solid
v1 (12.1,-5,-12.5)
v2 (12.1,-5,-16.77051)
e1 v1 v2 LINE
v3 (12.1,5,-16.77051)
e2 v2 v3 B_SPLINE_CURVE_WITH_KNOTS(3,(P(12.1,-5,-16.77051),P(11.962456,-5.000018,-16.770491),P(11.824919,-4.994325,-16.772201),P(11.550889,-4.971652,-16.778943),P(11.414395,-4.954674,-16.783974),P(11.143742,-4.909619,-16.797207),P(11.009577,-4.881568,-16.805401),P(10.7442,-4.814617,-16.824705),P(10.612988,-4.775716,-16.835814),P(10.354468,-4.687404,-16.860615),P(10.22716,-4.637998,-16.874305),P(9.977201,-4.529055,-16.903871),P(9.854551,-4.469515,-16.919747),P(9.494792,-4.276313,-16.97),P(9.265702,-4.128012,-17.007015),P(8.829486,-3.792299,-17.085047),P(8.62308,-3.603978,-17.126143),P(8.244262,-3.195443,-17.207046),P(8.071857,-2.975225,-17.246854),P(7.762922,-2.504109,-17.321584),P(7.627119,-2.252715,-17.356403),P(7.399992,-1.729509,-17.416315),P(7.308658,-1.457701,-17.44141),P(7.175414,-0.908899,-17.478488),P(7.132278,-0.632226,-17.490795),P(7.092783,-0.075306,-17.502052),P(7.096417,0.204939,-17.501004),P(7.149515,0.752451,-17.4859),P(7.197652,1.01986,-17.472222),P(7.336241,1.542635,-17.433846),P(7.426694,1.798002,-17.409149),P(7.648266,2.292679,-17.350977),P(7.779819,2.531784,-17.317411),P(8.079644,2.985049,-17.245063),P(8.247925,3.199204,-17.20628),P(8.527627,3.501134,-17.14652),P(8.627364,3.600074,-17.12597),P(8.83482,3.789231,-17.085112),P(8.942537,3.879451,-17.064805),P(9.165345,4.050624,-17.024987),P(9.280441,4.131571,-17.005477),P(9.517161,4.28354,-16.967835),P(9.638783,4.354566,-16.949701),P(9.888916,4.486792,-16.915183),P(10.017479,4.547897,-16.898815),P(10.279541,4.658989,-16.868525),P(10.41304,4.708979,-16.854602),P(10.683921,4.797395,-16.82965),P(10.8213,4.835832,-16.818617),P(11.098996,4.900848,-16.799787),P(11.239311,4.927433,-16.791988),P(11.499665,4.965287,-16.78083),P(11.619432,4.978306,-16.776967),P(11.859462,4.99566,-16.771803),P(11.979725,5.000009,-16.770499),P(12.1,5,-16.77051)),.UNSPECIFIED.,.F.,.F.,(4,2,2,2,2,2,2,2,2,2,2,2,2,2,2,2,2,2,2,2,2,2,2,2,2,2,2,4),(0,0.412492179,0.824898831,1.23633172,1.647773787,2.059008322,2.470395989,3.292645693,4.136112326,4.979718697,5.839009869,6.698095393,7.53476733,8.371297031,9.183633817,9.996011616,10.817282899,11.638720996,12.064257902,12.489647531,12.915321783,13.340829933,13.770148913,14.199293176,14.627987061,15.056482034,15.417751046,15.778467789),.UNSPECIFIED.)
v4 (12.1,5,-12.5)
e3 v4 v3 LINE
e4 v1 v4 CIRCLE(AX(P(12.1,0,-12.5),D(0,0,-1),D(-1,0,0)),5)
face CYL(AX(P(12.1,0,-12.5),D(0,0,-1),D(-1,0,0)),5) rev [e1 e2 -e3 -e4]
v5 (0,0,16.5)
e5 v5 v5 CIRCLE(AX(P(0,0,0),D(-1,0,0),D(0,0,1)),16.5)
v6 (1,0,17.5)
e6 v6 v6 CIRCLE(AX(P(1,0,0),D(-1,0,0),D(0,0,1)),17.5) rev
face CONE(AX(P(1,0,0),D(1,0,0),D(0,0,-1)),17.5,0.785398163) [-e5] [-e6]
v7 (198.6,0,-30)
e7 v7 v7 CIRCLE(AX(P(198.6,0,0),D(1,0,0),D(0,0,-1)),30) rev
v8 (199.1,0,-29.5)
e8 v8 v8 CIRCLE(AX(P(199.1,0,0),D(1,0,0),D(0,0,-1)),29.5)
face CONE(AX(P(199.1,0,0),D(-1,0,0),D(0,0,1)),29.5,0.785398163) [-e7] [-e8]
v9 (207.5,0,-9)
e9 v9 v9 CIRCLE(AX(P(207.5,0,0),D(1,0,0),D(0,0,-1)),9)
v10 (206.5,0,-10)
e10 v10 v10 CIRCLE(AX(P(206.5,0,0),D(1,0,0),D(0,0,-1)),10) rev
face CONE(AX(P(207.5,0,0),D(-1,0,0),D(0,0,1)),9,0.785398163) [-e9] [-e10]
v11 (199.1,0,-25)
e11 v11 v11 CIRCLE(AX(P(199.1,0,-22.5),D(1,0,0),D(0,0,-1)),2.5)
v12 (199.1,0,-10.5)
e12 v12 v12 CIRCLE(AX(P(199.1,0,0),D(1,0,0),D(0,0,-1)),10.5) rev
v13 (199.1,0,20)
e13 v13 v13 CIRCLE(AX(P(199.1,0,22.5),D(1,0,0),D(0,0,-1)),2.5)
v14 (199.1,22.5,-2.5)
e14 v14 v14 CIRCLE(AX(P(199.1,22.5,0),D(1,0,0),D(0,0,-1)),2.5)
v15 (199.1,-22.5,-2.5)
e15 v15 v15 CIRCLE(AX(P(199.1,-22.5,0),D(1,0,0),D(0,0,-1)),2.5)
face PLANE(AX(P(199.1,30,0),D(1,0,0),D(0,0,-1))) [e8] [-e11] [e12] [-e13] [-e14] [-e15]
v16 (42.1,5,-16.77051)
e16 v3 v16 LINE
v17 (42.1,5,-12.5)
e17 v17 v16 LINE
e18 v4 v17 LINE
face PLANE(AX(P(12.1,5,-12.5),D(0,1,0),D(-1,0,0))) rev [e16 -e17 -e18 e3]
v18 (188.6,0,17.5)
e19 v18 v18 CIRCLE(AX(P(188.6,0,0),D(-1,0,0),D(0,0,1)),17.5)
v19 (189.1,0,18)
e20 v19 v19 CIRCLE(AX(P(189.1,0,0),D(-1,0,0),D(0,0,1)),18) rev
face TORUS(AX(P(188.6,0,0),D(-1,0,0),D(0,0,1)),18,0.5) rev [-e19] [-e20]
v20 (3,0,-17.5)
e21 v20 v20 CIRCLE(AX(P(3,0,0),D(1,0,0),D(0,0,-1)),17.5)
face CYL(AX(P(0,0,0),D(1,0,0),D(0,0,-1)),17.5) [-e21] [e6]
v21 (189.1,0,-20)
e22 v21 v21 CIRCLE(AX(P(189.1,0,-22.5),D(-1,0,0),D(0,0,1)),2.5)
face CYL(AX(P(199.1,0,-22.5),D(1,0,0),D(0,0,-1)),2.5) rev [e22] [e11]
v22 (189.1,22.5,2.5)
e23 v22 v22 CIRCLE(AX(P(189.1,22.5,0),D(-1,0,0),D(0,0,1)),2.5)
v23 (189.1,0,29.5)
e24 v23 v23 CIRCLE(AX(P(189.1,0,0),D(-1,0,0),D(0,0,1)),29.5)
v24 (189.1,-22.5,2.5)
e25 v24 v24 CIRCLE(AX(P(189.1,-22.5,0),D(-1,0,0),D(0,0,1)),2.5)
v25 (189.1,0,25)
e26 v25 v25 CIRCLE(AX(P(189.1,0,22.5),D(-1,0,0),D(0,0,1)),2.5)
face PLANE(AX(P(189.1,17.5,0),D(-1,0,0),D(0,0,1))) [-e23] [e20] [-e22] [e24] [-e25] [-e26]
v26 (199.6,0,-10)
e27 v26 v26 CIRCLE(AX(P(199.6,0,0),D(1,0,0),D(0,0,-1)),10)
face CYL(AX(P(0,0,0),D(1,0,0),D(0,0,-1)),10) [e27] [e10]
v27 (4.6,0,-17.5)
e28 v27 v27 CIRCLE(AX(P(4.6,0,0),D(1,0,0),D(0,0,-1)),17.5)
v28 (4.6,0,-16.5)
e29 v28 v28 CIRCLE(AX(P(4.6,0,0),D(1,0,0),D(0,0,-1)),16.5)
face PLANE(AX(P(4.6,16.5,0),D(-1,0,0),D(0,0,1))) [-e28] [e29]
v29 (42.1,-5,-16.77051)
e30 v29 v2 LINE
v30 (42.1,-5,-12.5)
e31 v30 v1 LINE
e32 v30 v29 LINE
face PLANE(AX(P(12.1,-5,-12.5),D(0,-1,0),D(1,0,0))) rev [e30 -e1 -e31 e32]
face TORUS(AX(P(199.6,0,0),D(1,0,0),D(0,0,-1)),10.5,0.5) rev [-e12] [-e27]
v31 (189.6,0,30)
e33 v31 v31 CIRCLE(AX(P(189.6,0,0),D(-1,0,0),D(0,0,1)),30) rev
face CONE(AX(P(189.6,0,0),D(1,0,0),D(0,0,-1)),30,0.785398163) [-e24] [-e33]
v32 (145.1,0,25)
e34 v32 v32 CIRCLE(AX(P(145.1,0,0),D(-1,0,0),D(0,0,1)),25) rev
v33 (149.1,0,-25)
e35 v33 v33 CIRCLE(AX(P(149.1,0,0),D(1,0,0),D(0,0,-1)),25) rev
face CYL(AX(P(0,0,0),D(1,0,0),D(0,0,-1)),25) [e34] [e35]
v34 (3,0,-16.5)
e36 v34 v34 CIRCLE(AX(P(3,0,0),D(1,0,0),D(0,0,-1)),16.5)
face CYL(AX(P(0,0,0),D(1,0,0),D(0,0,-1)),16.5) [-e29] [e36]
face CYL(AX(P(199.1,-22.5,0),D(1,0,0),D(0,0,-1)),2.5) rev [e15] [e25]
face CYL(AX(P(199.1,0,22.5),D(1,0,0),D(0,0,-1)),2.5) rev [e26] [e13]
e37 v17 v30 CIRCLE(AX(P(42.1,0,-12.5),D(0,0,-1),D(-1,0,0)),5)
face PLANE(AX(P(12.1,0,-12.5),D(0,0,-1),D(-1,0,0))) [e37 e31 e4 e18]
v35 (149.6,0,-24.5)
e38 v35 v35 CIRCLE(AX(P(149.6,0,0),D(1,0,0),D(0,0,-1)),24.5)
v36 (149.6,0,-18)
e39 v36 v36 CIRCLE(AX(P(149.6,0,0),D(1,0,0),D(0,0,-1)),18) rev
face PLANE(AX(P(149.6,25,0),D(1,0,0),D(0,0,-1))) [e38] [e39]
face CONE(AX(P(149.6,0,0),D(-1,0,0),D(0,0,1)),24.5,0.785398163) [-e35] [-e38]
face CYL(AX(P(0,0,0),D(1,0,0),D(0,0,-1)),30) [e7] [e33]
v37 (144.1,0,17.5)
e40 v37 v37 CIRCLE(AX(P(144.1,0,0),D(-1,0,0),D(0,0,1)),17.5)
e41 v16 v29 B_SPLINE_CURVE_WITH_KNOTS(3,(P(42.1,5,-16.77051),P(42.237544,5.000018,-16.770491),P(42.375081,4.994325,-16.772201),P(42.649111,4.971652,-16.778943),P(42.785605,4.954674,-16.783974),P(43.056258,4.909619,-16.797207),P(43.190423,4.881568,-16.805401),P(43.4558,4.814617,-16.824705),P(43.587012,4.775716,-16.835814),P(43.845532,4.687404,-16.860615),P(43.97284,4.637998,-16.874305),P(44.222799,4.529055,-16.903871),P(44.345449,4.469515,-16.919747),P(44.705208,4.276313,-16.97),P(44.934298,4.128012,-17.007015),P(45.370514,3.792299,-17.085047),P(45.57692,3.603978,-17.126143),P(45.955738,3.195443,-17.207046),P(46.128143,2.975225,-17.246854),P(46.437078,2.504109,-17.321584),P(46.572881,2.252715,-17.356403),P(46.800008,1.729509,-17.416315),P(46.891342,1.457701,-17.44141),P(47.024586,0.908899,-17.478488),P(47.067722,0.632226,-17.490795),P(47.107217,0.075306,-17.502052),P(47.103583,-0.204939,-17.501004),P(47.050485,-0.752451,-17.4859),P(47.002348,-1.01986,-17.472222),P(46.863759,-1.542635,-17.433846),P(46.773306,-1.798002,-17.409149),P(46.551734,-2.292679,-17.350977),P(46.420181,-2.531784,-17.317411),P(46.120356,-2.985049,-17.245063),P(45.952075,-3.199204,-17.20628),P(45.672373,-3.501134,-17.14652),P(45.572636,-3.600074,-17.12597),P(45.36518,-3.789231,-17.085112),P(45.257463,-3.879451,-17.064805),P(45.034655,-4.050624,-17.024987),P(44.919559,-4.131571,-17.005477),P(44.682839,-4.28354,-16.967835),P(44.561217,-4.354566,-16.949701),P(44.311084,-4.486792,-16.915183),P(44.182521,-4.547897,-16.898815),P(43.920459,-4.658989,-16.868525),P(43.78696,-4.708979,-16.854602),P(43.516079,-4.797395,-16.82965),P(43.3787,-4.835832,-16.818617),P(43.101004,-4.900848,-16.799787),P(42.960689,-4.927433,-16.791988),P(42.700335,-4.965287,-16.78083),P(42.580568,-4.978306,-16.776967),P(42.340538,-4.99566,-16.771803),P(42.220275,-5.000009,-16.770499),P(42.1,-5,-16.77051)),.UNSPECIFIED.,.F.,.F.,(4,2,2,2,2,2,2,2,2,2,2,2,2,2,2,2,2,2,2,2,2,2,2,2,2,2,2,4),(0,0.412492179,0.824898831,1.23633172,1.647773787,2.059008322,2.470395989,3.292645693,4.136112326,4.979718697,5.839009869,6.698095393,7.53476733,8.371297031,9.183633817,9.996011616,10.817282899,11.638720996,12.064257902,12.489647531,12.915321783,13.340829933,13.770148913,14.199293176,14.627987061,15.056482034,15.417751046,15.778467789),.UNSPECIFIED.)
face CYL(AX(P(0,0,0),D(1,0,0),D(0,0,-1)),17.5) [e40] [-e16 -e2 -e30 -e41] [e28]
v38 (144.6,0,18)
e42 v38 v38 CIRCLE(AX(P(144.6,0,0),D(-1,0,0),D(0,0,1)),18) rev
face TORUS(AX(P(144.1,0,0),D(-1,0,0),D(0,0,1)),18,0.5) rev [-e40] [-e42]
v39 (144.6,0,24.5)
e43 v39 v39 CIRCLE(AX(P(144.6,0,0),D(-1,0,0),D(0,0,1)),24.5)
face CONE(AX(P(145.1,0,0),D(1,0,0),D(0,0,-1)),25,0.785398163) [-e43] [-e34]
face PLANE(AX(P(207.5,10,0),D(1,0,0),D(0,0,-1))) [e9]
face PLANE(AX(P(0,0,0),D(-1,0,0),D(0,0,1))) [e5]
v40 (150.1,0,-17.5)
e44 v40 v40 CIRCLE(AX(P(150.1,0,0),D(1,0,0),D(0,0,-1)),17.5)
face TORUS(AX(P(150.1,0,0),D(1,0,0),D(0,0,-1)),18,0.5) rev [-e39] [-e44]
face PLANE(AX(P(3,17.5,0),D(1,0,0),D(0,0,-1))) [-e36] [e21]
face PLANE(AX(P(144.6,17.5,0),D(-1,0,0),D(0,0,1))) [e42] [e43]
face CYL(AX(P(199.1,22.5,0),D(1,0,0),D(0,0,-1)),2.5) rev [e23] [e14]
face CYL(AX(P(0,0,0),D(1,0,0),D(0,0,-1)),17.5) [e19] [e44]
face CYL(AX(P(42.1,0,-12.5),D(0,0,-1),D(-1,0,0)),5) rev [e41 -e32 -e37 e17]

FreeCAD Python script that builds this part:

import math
import FreeCAD as App
import Part
import Sketcher
Q = App.Units.Quantity


def edges_at(feature, points):
    """Names of the edges that pass closest to the given points."""
    edges = feature.Shape.Edges
    near = lambda p: min(range(len(edges)), key=lambda i: edges[i].distToShape(Part.Vertex(*p))[0])
    return sorted({f"Edge{near(p) + 1}" for p in points})


def add_polygon(sketch, points):
    """Adds a closed chain of lines whose ends are joined by coincident constraints."""
    first, n = sketch.GeometryCount, len(points)
    for a, b in zip(points, points[1:] + points[:1]):
        sketch.addGeometry(Part.LineSegment(App.Vector(*a, 0), App.Vector(*b, 0)), False)
    for i in range(n):
        sketch.addConstraint(Sketcher.Constraint("Coincident", first + i, 2, first + (i + 1) % n, 1))

doc = App.newDocument("Part")
body = doc.addObject("PartDesign::Body", "Body")

# Sketch on XY plane
sketch1 = doc.addObject("Sketcher::SketchObject", "Sketch")
body.addObject(sketch1)
sketch1.AttachmentSupport = (doc.XY_Plane, [""])
sketch1.MapMode = "FlatFace"
add_polygon(sketch1, [(0, 0), (207.5, 0), (207.5, 10), (199.1, 10), (199.1, 30), (189.1, 30), (189.1, 17.5), (149.6, 17.5), (149.6, 25), (144.6, 25), (144.6, 17.5), (4.6, 17.5), (4.6, 16.5), (3, 16.5), (3, 17.5), (0, 17.5)])  # lines 0-15
sketch1.addConstraint(Sketcher.Constraint("Horizontal", 0))
sketch1.addConstraint(Sketcher.Constraint("Vertical", 1))
sketch1.addConstraint(Sketcher.Constraint("Horizontal", 2))
sketch1.addConstraint(Sketcher.Constraint("Vertical", 3))
sketch1.addConstraint(Sketcher.Constraint("Horizontal", 4))
sketch1.addConstraint(Sketcher.Constraint("Vertical", 5))
sketch1.addConstraint(Sketcher.Constraint("Horizontal", 6))
sketch1.addConstraint(Sketcher.Constraint("Vertical", 7))
sketch1.addConstraint(Sketcher.Constraint("Horizontal", 8))
sketch1.addConstraint(Sketcher.Constraint("Vertical", 9))
sketch1.addConstraint(Sketcher.Constraint("Horizontal", 10))
sketch1.addConstraint(Sketcher.Constraint("Vertical", 11))
sketch1.addConstraint(Sketcher.Constraint("Horizontal", 12))
sketch1.addConstraint(Sketcher.Constraint("Vertical", 13))
sketch1.addConstraint(Sketcher.Constraint("Horizontal", 14))
sketch1.addConstraint(Sketcher.Constraint("Vertical", 15))
sketch1.addConstraint(Sketcher.Constraint("Coincident", 15, 2, -1, 1))
sketch1.addConstraint(Sketcher.Constraint("Horizontal", 6, 2, 9, 2))
sketch1.addConstraint(Sketcher.Constraint("Horizontal", 10, 2, 13, 2))
sketch1.addConstraint(Sketcher.Constraint("Equal", 4, 1))
sketch1.addConstraint(Sketcher.Constraint("DistanceX", 4, 2, 4, 1, Q("10 mm")))
sketch1.addConstraint(Sketcher.Constraint("DistanceX", 8, 2, 8, 1, Q("5 mm")))
sketch1.addConstraint(Sketcher.Constraint("DistanceX", 10, 2, 10, 1, Q("140 mm")))
sketch1.addConstraint(Sketcher.Constraint("DistanceX", 14, 2, 14, 1, Q("3 mm")))
sketch1.addConstraint(Sketcher.Constraint("DistanceY", 3, 1, 3, 2, Q("20 mm")))
sketch1.addConstraint(Sketcher.Constraint("DistanceY", 11, 2, 11, 1, Q("1 mm")))
sketch1.addConstraint(Sketcher.Constraint("DistanceX", 0, 1, 0, 2, Q("207.5 mm")))
sketch1.addConstraint(Sketcher.Constraint("DistanceX", 2, 2, 2, 1, Q("8.4 mm")))
sketch1.addConstraint(Sketcher.Constraint("DistanceX", 6, 2, 6, 1, Q("39.5 mm")))
sketch1.addConstraint(Sketcher.Constraint("DistanceY", 5, 2, 5, 1, Q("12.5 mm")))
sketch1.addConstraint(Sketcher.Constraint("DistanceY", 7, 1, 7, 2, Q("7.5 mm")))
revolution = doc.addObject("PartDesign::Revolution", "Revolution")
body.addObject(revolution)
revolution.Profile = sketch1
revolution.ReferenceAxis = (sketch1, ["H_Axis"])
revolution.Angle = 360

# Sketch on YZ plane
sketch2 = doc.addObject("Sketcher::SketchObject", "Sketch001")
body.addObject(sketch2)
sketch2.AttachmentSupport = (doc.YZ_Plane, [""])
sketch2.MapMode = "FlatFace"
sketch2.AttachmentOffset = App.Placement(App.Vector(0, 0, 199.1), App.Rotation())
sketch2.addGeometry(Part.Circle(App.Vector(22.5, 0, 0), App.Vector(0, 0, 1), 2.5), False)
sketch2.addGeometry(Part.Circle(App.Vector(0, -22.5, 0), App.Vector(0, 0, 1), 2.5), False)
sketch2.addGeometry(Part.Circle(App.Vector(-22.5, 0, 0), App.Vector(0, 0, 1), 2.5), False)
sketch2.addGeometry(Part.Circle(App.Vector(0, 22.5, 0), App.Vector(0, 0, 1), 2.5), False)
sketch2.addConstraint(Sketcher.Constraint("Equal", 0, 1))
sketch2.addConstraint(Sketcher.Constraint("Equal", 1, 2))
sketch2.addConstraint(Sketcher.Constraint("Equal", 2, 3))
sketch2.addConstraint(Sketcher.Constraint("Symmetric", 0, 3, 2, 3, -1, 1))
sketch2.addConstraint(Sketcher.Constraint("Symmetric", 1, 3, 3, 3, -1, 1))
sketch2.addConstraint(Sketcher.Constraint("PointOnObject", 0, 3, -1))
sketch2.addConstraint(Sketcher.Constraint("PointOnObject", 1, 3, -2))
sketch2.addConstraint(Sketcher.Constraint("Diameter", 0, Q("5 mm")))
sketch2.addConstraint(Sketcher.Constraint("DistanceX", 2, 3, 0, 3, Q("45 mm")))
sketch2.addConstraint(Sketcher.Constraint("DistanceY", 1, 3, 3, 3, Q("45 mm")))
doc.recompute()
hole = doc.addObject("PartDesign::Hole", "Hole")
body.addObject(hole)
hole.Profile = sketch2
hole.ThreadType = "None"
hole.Diameter = 5
hole.DepthType = "Dimension"
hole.Depth = 10
hole.DrillPoint = "Flat"
doc.recompute()

chamfer = doc.addObject("PartDesign::Chamfer", "Chamfer")
body.addObject(chamfer)
chamfer.Base = (hole, edges_at(hole, [(207.5, -10, 0), (0, -17.5, 0)]))
chamfer.Size = 1
doc.recompute()

fillet = doc.addObject("PartDesign::Fillet", "Fillet")
body.addObject(fillet)
fillet.Base = (chamfer, edges_at(chamfer, [(189.1, -17.5, 0), (149.6, -17.5, 0), (144.6, -17.5, 0)]))
fillet.Radius = 0.5
doc.recompute()

chamfer2 = doc.addObject("PartDesign::Chamfer", "Chamfer001")
body.addObject(chamfer2)
chamfer2.Base = (fillet, edges_at(fillet, [
    (199.1, -30, 0),
    (189.1, -30, 0),
    (149.6, -25, 0),
    (144.6, -25, 0),
]))
chamfer2.Size = 0.5
doc.recompute()

fillet2 = doc.addObject("PartDesign::Fillet", "Fillet001")
body.addObject(fillet2)
fillet2.Base = (chamfer2, edges_at(chamfer2, [(199.1, -10, 0)]))
fillet2.Radius = 0.5

# Sketch on XY plane
sketch3 = doc.addObject("Sketcher::SketchObject", "Sketch002")
body.addObject(sketch3)
sketch3.AttachmentSupport = (doc.XY_Plane, [""])
sketch3.MapMode = "FlatFace"
sketch3.AttachmentOffset = App.Placement(App.Vector(0, 0, -17.5), App.Rotation())
sketch3.addGeometry(Part.LineSegment(App.Vector(42, -5, 0), App.Vector(12, -5, 0)), False)
sketch3.addGeometry(Part.ArcOfCircle(Part.Circle(App.Vector(12, 0, 0), App.Vector(0, 0, 1), 5), math.radians(90), math.radians(270)), False)
sketch3.addGeometry(Part.LineSegment(App.Vector(12, 5, 0), App.Vector(42, 5, 0)), False)
sketch3.addGeometry(Part.ArcOfCircle(Part.Circle(App.Vector(42, 0, 0), App.Vector(0, 0, 1), 5), math.radians(-90), math.radians(90)), False)
sketch3.addConstraint(Sketcher.Constraint("Tangent", 0, 2, 1, 2))
sketch3.addConstraint(Sketcher.Constraint("Tangent", 1, 1, 2, 1))
sketch3.addConstraint(Sketcher.Constraint("Tangent", 2, 2, 3, 2))
sketch3.addConstraint(Sketcher.Constraint("Tangent", 3, 1, 0, 1))
sketch3.addConstraint(Sketcher.Constraint("Horizontal", 0))
sketch3.addConstraint(Sketcher.Constraint("Horizontal", 2))
sketch3.addConstraint(Sketcher.Constraint("PointOnObject", 1, 3, -1))
sketch3.addConstraint(Sketcher.Constraint("Radius", 1, Q("5 mm")))
sketch3.addConstraint(Sketcher.Constraint("DistanceX", 0, 2, 0, 1, Q("30 mm")))
sketch3.addConstraint(Sketcher.Constraint("DistanceX", -1, 1, 1, 3, Q("12.1 mm")))
pocket1 = doc.addObject("PartDesign::Pocket", "Pocket")
body.addObject(pocket1)
pocket1.Profile = sketch3
pocket1.Length = 5
pocket1.Reversed = True

doc.recompute()
